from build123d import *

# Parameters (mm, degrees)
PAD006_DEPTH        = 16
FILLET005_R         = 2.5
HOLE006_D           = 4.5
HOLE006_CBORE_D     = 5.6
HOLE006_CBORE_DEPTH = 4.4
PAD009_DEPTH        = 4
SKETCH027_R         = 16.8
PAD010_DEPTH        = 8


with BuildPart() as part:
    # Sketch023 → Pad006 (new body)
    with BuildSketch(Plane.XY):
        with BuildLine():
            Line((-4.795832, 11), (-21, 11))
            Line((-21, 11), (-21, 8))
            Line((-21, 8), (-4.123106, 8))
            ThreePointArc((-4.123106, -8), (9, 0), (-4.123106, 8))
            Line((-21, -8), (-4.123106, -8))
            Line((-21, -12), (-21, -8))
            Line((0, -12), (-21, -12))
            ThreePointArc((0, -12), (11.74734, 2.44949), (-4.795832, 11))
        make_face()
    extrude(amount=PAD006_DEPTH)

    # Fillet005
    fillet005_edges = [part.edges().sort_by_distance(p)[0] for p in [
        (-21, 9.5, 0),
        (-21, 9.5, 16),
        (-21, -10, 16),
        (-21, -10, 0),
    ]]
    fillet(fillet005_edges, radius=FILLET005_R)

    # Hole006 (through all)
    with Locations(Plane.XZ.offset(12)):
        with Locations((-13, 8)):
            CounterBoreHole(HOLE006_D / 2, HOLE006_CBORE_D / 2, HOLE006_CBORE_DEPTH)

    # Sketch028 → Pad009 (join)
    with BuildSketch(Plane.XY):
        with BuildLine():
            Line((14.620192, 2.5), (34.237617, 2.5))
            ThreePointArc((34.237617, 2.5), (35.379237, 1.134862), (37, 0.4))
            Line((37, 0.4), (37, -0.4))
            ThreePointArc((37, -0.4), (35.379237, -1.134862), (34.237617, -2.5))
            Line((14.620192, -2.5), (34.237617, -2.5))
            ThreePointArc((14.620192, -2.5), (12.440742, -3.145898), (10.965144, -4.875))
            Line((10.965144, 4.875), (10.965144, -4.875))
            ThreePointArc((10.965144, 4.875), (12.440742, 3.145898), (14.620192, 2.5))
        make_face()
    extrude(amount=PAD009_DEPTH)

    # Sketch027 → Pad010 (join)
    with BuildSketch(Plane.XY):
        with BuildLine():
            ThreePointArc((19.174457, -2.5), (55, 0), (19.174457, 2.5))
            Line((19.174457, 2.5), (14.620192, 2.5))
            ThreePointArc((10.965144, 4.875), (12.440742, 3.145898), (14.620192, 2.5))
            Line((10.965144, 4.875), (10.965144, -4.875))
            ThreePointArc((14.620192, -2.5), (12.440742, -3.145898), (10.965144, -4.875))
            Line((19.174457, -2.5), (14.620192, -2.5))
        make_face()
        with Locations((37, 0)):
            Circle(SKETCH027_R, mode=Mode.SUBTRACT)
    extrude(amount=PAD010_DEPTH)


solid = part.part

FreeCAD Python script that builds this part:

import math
import FreeCAD as App
import Part
import Sketcher

V = App.Vector


def edges_at(feature, points):
    """Names of the edges that pass closest to the given points."""
    edges = feature.Shape.Edges
    near = lambda p: min(range(len(edges)), key=lambda i: edges[i].distToShape(Part.Vertex(*p))[0])
    return sorted({f"Edge{near(p) + 1}" for p in points})

doc = App.newDocument("Part")
body = doc.addObject("PartDesign::Body", "Body")

# Sketch on XY plane
sketch1 = body.newObject("Sketcher::SketchObject", "Sketch")
sketch1.AttachmentSupport = (doc.getObject("XY_Plane"), [""])
sketch1.MapMode = "FlatFace"
sketch1.addGeometry([
    Part.LineSegment(V(-4.8, 11, 0), V(-21, 11, 0)),  # 0
    Part.LineSegment(V(-21, 11, 0), V(-21, 8, 0)),  # 1
    Part.LineSegment(V(-21, 8, 0), V(-4.1, 8, 0)),  # 2
    Part.ArcOfCircle(Part.Circle(V(0, 0, 0), V(0, 0, 1), 9), math.radians(-117), math.radians(117)),  # 3
    Part.LineSegment(V(-4.1, -8, 0), V(-21, -8, 0)),  # 4
    Part.LineSegment(V(-21, -8, 0), V(-21, -12, 0)),  # 5
    Part.LineSegment(V(-21, -12, 0), V(0, -12, 0)),  # 6
    Part.ArcOfCircle(Part.Circle(V(0, 0, 0), V(0, 0, 1), 12), math.radians(-90), math.radians(114)),  # 7
], False)
sketch1.addConstraint([
    Sketcher.Constraint("Coincident", 0, 2, 1, 1),
    Sketcher.Constraint("Coincident", 1, 2, 2, 1),
    Sketcher.Constraint("Coincident", 2, 2, 3, 2),
    Sketcher.Constraint("Coincident", 3, 1, 4, 1),
    Sketcher.Constraint("Coincident", 4, 2, 5, 1),
    Sketcher.Constraint("Coincident", 5, 2, 6, 1),
    Sketcher.Constraint("Tangent", 6, 2, 7, 1),
    Sketcher.Constraint("Coincident", 7, 2, 0, 1),
    Sketcher.Constraint("Horizontal", 0),
    Sketcher.Constraint("Vertical", 1),
    Sketcher.Constraint("Horizontal", 2),
    Sketcher.Constraint("Horizontal", 4),
    Sketcher.Constraint("Vertical", 5),
    Sketcher.Constraint("Horizontal", 6),
    Sketcher.Constraint("Coincident", 3, 3, -1, 1),
    Sketcher.Constraint("Coincident", 7, 3, -1, 1),
    Sketcher.Constraint("Symmetric", 1, 2, 4, 2, -1),
    Sketcher.Constraint("Radius", 3, 9.0),
    Sketcher.Constraint("Radius", 7, 12.0),
    Sketcher.Constraint("DistanceX", 6, 1, 6, 2, 21.0),
    Sketcher.Constraint("DistanceY", 1, 2, 1, 1, 3.0),
    Sketcher.Constraint("DistanceY", 5, 2, 5, 1, 4.0),
])
pad1 = body.newObject("PartDesign::Pad", "Pad")
pad1.Profile = sketch1
pad1.Length = 16
doc.recompute()

fillet = body.newObject("PartDesign::Fillet", "Fillet")
fillet.Base = (pad1, edges_at(pad1, [
    (-21, 9.5, 0),
    (-21, 9.5, 16),
    (-21, -10, 16),
    (-21, -10, 0),
]))
fillet.Radius = 2.5

# Sketch on XZ plane
sketch2 = body.newObject("Sketcher::SketchObject", "Sketch001")
sketch2.AttachmentSupport = (doc.getObject("XZ_Plane"), [""])
sketch2.MapMode = "FlatFace"
sketch2.AttachmentOffset = App.Placement(V(0, 0, 12), App.Rotation())
sketch2.addGeometry(Part.Circle(V(-13, 8, 0), V(0, 0, 1), 2.2), False)
sketch2.addConstraint([
    Sketcher.Constraint("Diameter", 0, 4.5),
    Sketcher.Constraint("DistanceX", 0, 3, -1, 1, 13.0),
    Sketcher.Constraint("DistanceY", -1, 1, 0, 3, 8.0),
])
doc.recompute()
hole = body.newObject("PartDesign::Hole", "Hole")
hole.Profile = sketch2
hole.ThreadType = "None"
hole.Diameter = 4.5
hole.DepthType = "ThroughAll"
hole.HoleCutType = "Counterbore"
hole.HoleCutDiameter = 5.6
hole.HoleCutDepth = 4.4

# Sketch on XY plane
sketch3 = body.newObject("Sketcher::SketchObject", "Sketch002")
sketch3.AttachmentSupport = (doc.getObject("XY_Plane"), [""])
sketch3.MapMode = "FlatFace"
sketch3.addGeometry([
    Part.LineSegment(V(34.2, 2.5, 0), V(14.6, 2.5, 0)),  # 0
    Part.ArcOfCircle(Part.Circle(V(14.6, 6.5, 0), V(0, 0, 1), 4), math.radians(-156), math.radians(-90)),  # 1
    Part.LineSegment(V(11, 4.9, 0), V(11, -4.9, 0)),  # 2
    Part.ArcOfCircle(Part.Circle(V(14.6, -6.5, 0), V(0, 0, 1), 4), math.radians(90), math.radians(156)),  # 3
    Part.LineSegment(V(14.6, -2.5, 0), V(34.2, -2.5, 0)),  # 4
    Part.ArcOfCircle(Part.Circle(V(37.8, -4.3, 0), V(0, 0, 1), 4), math.radians(102), math.radians(153)),  # 5
    Part.LineSegment(V(37, -0.4, 0), V(37, 0.4, 0)),  # 6
    Part.ArcOfCircle(Part.Circle(V(37.8, 4.3, 0), V(0, 0, 1), 4), math.radians(-153), math.radians(-102)),  # 7
], False)
sketch3.addConstraint([
    Sketcher.Constraint("Tangent", 0, 2, 1, 2),
    Sketcher.Constraint("Coincident", 1, 1, 2, 1),
    Sketcher.Constraint("Coincident", 2, 2, 3, 2),
    Sketcher.Constraint("Tangent", 3, 1, 4, 1),
    Sketcher.Constraint("Coincident", 4, 2, 5, 2),
    Sketcher.Constraint("Coincident", 5, 1, 6, 1),
    Sketcher.Constraint("Coincident", 6, 2, 7, 2),
    Sketcher.Constraint("Coincident", 7, 1, 0, 1),
    Sketcher.Constraint("Horizontal", 0),
    Sketcher.Constraint("Vertical", 2),
    Sketcher.Constraint("Horizontal", 4),
    Sketcher.Constraint("Vertical", 6),
    Sketcher.Constraint("Equal", 1, 3),
    Sketcher.Constraint("Equal", 5, 7),
    Sketcher.Constraint("Symmetric", 1, 3, 3, 3, -1),
    Sketcher.Constraint("Symmetric", 5, 3, 7, 3, -1),
    Sketcher.Constraint("Radius", 1, 3.999999),
    Sketcher.Constraint("DistanceY", 6, 1, 6, 2, 0.8),
    Sketcher.Constraint("DistanceX", -1, 1, 5, 1, 37.0),
    Sketcher.Constraint("DistanceY", 3, 3, 0, 2, 8.999999),
    Sketcher.Constraint("DistanceY", 2, 2, 2, 1, 9.75),
    Sketcher.Constraint("Radius", 5, 4.000004),
    Sketcher.Constraint("DistanceX", 0, 2, 0, 1, 19.617425),
    Sketcher.Constraint("DistanceX", -1, 1, 1, 3, 14.620191),
])
pad2 = body.newObject("PartDesign::Pad", "Pad001")
pad2.Profile = sketch3
pad2.Length = 4

# Sketch on XY plane
sketch4 = body.newObject("Sketcher::SketchObject", "Sketch003")
sketch4.AttachmentSupport = (doc.getObject("XY_Plane"), [""])
sketch4.MapMode = "FlatFace"
sketch4.addGeometry([
    Part.ArcOfCircle(Part.Circle(V(37, 0, 0), V(0, 0, 1), 18), math.radians(-172), math.radians(172)),  # 0
    Part.LineSegment(V(19.2, 2.5, 0), V(14.6, 2.5, 0)),  # 1
    Part.ArcOfCircle(Part.Circle(V(14.6, 6.5, 0), V(0, 0, 1), 4), math.radians(-156), math.radians(-90)),  # 2
    Part.LineSegment(V(11, 4.9, 0), V(11, -4.9, 0)),  # 3
    Part.ArcOfCircle(Part.Circle(V(14.6, -6.5, 0), V(0, 0, 1), 4), math.radians(90), math.radians(156)),  # 4
    Part.LineSegment(V(14.6, -2.5, 0), V(19.2, -2.5, 0)),  # 5
    Part.Circle(V(37, 0, 0), V(0, 0, 1), 16.8),  # 6
], False)
sketch4.addConstraint([
    Sketcher.Constraint("Coincident", 0, 2, 1, 1),
    Sketcher.Constraint("Tangent", 1, 2, 2, 2),
    Sketcher.Constraint("Coincident", 2, 1, 3, 1),
    Sketcher.Constraint("Coincident", 3, 2, 4, 2),
    Sketcher.Constraint("Tangent", 4, 1, 5, 1),
    Sketcher.Constraint("Coincident", 5, 2, 0, 1),
    Sketcher.Constraint("Horizontal", 1),
    Sketcher.Constraint("Vertical", 3),
    Sketcher.Constraint("Horizontal", 5),
    Sketcher.Constraint("Coincident", 6, 3, 0, 3),
    Sketcher.Constraint("Equal", 2, 4),
    Sketcher.Constraint("Symmetric", 2, 3, 4, 3, -1),
    Sketcher.Constraint("PointOnObject", 0, 3, -1),
    Sketcher.Constraint("Radius", 0, 18.0),
    Sketcher.Constraint("Radius", 2, 3.999999),
    Sketcher.Constraint("Diameter", 6, 33.6),
    Sketcher.Constraint("DistanceX", -1, 1, 0, 3, 37.0),
    Sketcher.Constraint("DistanceY", 4, 3, 0, 2, 8.999999),
    Sketcher.Constraint("DistanceY", 3, 2, 3, 1, 9.75),
    Sketcher.Constraint("DistanceX", 1, 2, 1, 1, 4.554265),
])
pad3 = body.newObject("PartDesign::Pad", "Pad002")
pad3.Profile = sketch4
pad3.Length = 8

doc.recompute()
